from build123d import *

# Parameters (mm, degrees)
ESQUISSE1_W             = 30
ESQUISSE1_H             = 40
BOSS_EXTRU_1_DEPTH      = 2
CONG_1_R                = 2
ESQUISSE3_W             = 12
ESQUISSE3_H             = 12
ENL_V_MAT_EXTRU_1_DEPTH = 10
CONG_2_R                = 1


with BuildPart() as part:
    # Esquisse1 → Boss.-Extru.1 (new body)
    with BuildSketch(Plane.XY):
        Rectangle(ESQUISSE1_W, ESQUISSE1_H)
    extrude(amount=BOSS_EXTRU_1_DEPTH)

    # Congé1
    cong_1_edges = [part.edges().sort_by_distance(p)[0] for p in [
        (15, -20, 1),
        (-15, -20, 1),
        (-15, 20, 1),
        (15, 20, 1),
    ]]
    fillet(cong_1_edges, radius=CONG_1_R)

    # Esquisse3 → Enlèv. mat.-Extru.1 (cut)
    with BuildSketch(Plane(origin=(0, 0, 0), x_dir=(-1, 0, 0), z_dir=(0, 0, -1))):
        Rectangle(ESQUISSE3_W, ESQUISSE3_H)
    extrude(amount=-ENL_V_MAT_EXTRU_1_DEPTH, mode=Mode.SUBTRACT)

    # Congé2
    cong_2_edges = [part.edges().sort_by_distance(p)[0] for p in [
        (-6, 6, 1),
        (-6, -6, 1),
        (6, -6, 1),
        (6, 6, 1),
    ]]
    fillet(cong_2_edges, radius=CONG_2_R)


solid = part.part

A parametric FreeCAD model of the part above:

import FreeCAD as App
import Part
import Sketcher


def edges_at(feature, points):
    """Names of the edges that pass closest to the given points."""
    edges = feature.Shape.Edges
    near = lambda p: min(range(len(edges)), key=lambda i: edges[i].distToShape(Part.Vertex(*p))[0])
    return sorted({f"Edge{near(p) + 1}" for p in points})


def add_polygon(sketch, points):
    """Adds a closed chain of lines whose ends are joined by coincident constraints."""
    first, n = sketch.GeometryCount, len(points)
    for a, b in zip(points, points[1:] + points[:1]):
        sketch.addGeometry(Part.LineSegment(App.Vector(*a, 0), App.Vector(*b, 0)), False)
    for i in range(n):
        sketch.addConstraint(Sketcher.Constraint("Coincident", first + i, 2, first + (i + 1) % n, 1))

doc = App.newDocument("Part")
body = doc.addObject("PartDesign::Body", "Body")

sketch1 = body.newObject("Sketcher::SketchObject", "Sketch")
sketch1.AttachmentSupport = (doc.getObject("XY_Plane"), [""])
sketch1.MapMode = "FlatFace"
add_polygon(sketch1, [(-15, 20), (-15, -20), (15, -20), (15, 20)])
sketch1.addConstraint([
    Sketcher.Constraint("Vertical", 0),
    Sketcher.Constraint("Horizontal", 1),
    Sketcher.Constraint("Vertical", 2),
    Sketcher.Constraint("Horizontal", 3),
    Sketcher.Constraint("Symmetric", 0, 2, 2, 2, -1, 1),
    Sketcher.Constraint("DistanceX", 1, 1, 1, 2, 30.0),
    Sketcher.Constraint("DistanceY", 0, 2, 0, 1, 40.0),
])
pad1 = body.newObject("PartDesign::Pad", "Pad")
pad1.Profile = sketch1
pad1.Length = 2
doc.recompute()

fillet = body.newObject("PartDesign::Fillet", "Fillet")
fillet.Base = (pad1, edges_at(pad1, [
    (15, -20, 1),
    (-15, -20, 1),
    (-15, 20, 1),
    (15, 20, 1),
]))
fillet.Radius = 2

sketch2 = body.newObject("Sketcher::SketchObject", "Sketch001")
sketch2.AttachmentSupport = (doc.getObject("XY_Plane"), [""])
sketch2.MapMode = "FlatFace"
add_polygon(sketch2, [(6, 6), (6, -6), (-6, -6), (-6, 6)])
sketch2.addConstraint([
    Sketcher.Constraint("Vertical", 0),
    Sketcher.Constraint("Horizontal", 1),
    Sketcher.Constraint("Vertical", 2),
    Sketcher.Constraint("Horizontal", 3),
    Sketcher.Constraint("Symmetric", 0, 2, 2, 2, -1, 1),
    Sketcher.Constraint("Equal", 3, 0),
    Sketcher.Constraint("DistanceX", 1, 2, 1, 1, 12.0),
])
pocket1 = body.newObject("PartDesign::Pocket", "Pocket")
pocket1.Profile = sketch2
pocket1.Length = 10
pocket1.Reversed = True
doc.recompute()

fillet2 = body.newObject("PartDesign::Fillet", "Fillet001")
fillet2.Base = (pocket1, edges_at(pocket1, [
    (-6, 6, 1),
    (-6, -6, 1),
    (6, -6, 1),
    (6, 6, 1),
]))
fillet2.Radius = 1

doc.recompute()
